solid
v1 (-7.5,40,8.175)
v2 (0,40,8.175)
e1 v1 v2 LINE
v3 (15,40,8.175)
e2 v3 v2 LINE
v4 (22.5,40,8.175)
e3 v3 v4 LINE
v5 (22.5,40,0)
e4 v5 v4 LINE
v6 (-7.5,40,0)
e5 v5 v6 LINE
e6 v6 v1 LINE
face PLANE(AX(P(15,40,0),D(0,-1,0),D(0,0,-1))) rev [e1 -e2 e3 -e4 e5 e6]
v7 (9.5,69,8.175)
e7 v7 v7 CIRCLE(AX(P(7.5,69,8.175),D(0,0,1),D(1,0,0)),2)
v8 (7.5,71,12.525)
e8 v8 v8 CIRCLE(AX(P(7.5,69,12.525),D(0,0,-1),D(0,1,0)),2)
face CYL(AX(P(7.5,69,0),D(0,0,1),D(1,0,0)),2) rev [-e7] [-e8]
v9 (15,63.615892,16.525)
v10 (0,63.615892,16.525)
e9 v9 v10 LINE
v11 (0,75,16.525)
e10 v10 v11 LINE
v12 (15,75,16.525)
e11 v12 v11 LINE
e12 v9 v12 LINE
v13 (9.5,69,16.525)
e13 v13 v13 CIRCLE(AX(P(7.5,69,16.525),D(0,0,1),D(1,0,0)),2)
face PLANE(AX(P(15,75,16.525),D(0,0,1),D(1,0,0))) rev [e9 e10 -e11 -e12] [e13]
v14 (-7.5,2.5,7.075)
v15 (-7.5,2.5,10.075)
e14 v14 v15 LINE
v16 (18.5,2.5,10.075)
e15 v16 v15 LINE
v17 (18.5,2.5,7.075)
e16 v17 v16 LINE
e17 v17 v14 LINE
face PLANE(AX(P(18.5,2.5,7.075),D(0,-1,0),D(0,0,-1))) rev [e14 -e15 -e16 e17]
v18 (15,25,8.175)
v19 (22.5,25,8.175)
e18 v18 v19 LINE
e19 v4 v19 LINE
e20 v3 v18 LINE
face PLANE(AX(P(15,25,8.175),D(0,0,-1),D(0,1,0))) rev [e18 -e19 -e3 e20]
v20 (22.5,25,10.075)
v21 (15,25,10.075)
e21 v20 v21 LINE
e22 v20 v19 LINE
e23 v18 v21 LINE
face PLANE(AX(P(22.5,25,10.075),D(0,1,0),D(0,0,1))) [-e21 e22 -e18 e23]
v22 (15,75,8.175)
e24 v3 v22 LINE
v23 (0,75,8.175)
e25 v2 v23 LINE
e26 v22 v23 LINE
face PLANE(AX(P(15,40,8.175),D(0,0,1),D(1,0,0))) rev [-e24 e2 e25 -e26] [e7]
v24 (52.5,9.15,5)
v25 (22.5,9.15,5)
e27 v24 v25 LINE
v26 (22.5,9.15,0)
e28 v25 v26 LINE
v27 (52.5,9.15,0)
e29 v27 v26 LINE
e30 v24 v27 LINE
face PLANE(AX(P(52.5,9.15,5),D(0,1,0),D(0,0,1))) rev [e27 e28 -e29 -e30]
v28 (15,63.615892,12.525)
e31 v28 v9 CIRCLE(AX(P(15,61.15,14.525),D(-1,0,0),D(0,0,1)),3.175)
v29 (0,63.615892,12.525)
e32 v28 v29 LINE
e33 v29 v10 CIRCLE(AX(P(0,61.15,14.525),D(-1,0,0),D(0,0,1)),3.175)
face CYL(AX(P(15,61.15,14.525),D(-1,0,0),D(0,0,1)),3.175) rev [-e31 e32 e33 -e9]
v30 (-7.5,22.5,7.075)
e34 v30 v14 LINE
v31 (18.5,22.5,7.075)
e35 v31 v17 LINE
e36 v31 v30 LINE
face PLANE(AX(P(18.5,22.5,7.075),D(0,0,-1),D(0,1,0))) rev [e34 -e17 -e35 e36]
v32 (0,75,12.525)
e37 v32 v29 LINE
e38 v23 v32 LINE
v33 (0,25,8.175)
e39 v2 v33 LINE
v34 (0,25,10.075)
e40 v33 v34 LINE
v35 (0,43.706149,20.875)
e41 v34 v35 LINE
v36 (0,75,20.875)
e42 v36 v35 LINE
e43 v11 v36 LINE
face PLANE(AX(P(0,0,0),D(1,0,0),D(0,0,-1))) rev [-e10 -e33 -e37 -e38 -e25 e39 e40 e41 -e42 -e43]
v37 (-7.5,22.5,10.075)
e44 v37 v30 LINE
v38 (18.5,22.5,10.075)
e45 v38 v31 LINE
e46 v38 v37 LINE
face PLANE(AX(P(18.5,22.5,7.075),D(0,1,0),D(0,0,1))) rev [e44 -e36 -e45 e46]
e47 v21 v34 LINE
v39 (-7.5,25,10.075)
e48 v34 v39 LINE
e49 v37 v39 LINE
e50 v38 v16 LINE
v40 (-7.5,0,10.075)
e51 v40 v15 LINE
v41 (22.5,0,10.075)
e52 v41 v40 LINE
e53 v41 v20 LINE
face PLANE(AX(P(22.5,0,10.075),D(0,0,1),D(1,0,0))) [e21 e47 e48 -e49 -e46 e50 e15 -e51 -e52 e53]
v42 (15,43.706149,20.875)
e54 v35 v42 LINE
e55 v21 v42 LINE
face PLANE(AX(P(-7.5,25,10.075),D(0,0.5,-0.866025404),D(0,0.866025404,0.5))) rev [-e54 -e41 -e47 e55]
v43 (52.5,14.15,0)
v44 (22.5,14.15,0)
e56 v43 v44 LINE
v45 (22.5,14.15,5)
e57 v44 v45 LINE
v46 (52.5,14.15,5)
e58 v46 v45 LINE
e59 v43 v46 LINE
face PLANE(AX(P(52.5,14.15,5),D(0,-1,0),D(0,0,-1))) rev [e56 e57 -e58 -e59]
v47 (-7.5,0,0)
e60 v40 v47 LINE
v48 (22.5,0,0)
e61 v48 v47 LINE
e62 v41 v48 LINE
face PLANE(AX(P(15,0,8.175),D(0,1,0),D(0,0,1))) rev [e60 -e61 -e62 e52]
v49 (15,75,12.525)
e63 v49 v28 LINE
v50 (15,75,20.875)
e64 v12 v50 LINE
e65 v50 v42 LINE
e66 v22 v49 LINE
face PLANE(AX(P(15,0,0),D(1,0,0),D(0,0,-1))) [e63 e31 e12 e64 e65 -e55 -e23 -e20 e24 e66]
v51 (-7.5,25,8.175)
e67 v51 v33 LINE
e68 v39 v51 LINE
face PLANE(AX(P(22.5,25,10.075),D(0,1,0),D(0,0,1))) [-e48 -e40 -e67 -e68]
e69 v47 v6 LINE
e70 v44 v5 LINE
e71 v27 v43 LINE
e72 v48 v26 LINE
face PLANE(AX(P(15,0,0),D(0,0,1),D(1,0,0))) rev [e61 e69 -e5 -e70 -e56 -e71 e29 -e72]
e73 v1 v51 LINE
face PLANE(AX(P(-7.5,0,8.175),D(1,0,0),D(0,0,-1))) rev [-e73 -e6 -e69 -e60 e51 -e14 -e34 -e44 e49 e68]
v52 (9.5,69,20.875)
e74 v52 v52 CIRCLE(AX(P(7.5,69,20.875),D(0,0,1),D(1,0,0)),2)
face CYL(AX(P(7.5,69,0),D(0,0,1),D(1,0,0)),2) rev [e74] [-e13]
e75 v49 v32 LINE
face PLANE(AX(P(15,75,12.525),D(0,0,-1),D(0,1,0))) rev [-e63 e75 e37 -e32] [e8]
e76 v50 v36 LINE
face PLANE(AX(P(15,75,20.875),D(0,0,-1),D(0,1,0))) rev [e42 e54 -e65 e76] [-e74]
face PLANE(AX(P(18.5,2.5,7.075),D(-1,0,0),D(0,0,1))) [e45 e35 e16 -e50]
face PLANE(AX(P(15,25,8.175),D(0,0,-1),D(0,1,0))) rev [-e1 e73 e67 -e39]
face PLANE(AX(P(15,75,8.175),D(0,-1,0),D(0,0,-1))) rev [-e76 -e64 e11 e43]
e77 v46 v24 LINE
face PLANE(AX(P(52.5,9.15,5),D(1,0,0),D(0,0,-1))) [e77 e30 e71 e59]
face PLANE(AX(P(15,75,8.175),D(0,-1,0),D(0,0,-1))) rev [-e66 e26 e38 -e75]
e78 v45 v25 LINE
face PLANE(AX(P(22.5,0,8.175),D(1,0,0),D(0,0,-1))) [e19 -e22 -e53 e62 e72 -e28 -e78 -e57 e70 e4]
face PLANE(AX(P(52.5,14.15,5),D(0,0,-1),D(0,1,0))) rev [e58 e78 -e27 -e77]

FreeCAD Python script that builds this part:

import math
import FreeCAD as App
import Part
import Sketcher

V = App.Vector
Q = App.Units.Quantity

doc = App.newDocument("Part")
body = doc.addObject("PartDesign::Body", "Body")

# Sketch on YZ plane
sketch1 = doc.addObject("Sketcher::SketchObject", "Sketch")
body.addObject(sketch1)
sketch1.AttachmentSupport = (doc.YZ_Plane, [""])
sketch1.MapMode = "FlatFace"
sketch1.addGeometry([
    Part.LineSegment(V(0, 0, 0), V(40, 0, 0)),  # 0
    Part.LineSegment(V(40, 0, 0), V(40, 8, 0)),  # 1
    Part.LineSegment(V(40, 8, 0), V(75, 8, 0)),  # 2
    Part.LineSegment(V(75, 8, 0), V(75, 21, 0)),  # 3
    Part.LineSegment(V(75, 21, 0), V(25, 21, 0)),  # 4
    Part.LineSegment(V(25, 21, 0), V(25, 8, 0)),  # 5
    Part.LineSegment(V(25, 8, 0), V(0, 8, 0)),  # 6
    Part.LineSegment(V(0, 8, 0), V(0, 0, 0)),  # 7
], False)
sketch1.addConstraint([
    Sketcher.Constraint("Coincident", 0, 2, 1, 1),
    Sketcher.Constraint("Coincident", 1, 2, 2, 1),
    Sketcher.Constraint("Coincident", 2, 2, 3, 1),
    Sketcher.Constraint("Coincident", 3, 2, 4, 1),
    Sketcher.Constraint("Coincident", 4, 2, 5, 1),
    Sketcher.Constraint("Coincident", 5, 2, 6, 1),
    Sketcher.Constraint("Coincident", 6, 2, 7, 1),
    Sketcher.Constraint("Coincident", 7, 2, 0, 1),
    Sketcher.Constraint("Horizontal", 0),
    Sketcher.Constraint("Vertical", 1),
    Sketcher.Constraint("Horizontal", 2),
    Sketcher.Constraint("Vertical", 3),
    Sketcher.Constraint("Horizontal", 4),
    Sketcher.Constraint("Vertical", 5),
    Sketcher.Constraint("Horizontal", 6),
    Sketcher.Constraint("Vertical", 7),
    Sketcher.Constraint("Coincident", 7, 2, -1, 1),
    Sketcher.Constraint("Horizontal", 2, 2, 5, 2),
    Sketcher.Constraint("DistanceX", 0, 1, 0, 2, 40.0),
    Sketcher.Constraint("DistanceX", 2, 1, 2, 2, 35.0),
    Sketcher.Constraint("DistanceX", 4, 2, 4, 1, 50.0),
    Sketcher.Constraint("DistanceY", 3, 1, 3, 2, 12.7),
    Sketcher.Constraint("DistanceY", 1, 1, 1, 2, 8.175),
])
pad1 = doc.addObject("PartDesign::Pad", "Pad")
body.addObject(pad1)
pad1.Profile = sketch1
pad1.Length = 15

# Sketch on YZ plane
sketch2 = doc.addObject("Sketcher::SketchObject", "Sketch001")
body.addObject(sketch2)
sketch2.AttachmentSupport = (doc.YZ_Plane, [""])
sketch2.MapMode = "FlatFace"
sketch2.addGeometry([
    Part.LineSegment(V(75, 12.5, 0), V(63.6, 12.5, 0)),
    Part.ArcOfCircle(Part.Circle(V(61.1, 14.5, 0), V(0, 0, 1), 3.2), math.radians(39), math.radians(321)),
    Part.LineSegment(V(63.6, 16.5, 0), V(75, 16.5, 0)),
    Part.LineSegment(V(75, 16.5, 0), V(75, 12.5, 0)),
], False)
sketch2.addConstraint([
    Sketcher.Constraint("Coincident", 0, 2, 1, 2),
    Sketcher.Constraint("Coincident", 1, 1, 2, 1),
    Sketcher.Constraint("Coincident", 2, 2, 3, 1),
    Sketcher.Constraint("Coincident", 3, 2, 0, 1),
    Sketcher.Constraint("Horizontal", 0),
    Sketcher.Constraint("Horizontal", 2),
    Sketcher.Constraint("Vertical", 3),
    Sketcher.Constraint("Vertical", 0, 2, 1, 1),
    Sketcher.Constraint("DistanceY", 3, 2, 3, 1, 4.0),
    Sketcher.Constraint("DistanceX", -1, 1, 2, 2, 75.0),
    Sketcher.Constraint("Radius", 1, 3.175),
    Sketcher.Constraint("DistanceX", -1, 1, 1, 3, 61.15),
    Sketcher.Constraint("DistanceY", -1, 1, 1, 3, 14.525),
])
pocket1 = doc.addObject("PartDesign::Pocket", "Pocket")
body.addObject(pocket1)
pocket1.Profile = sketch2
pocket1.Type = "ThroughAll"
pocket1.Reversed = True

# Sketch on XY plane
sketch3 = doc.addObject("Sketcher::SketchObject", "Sketch002")
body.addObject(sketch3)
sketch3.AttachmentSupport = (doc.XY_Plane, [""])
sketch3.MapMode = "FlatFace"
sketch3.AttachmentOffset = App.Placement(V(0, 0, 20.875), App.Rotation())
sketch3.addGeometry(Part.Circle(V(7.5, 69, 0), V(0, 0, 1), 2), False)
sketch3.addConstraint([
    Sketcher.Constraint("Diameter", 0, 4.0),
    Sketcher.Constraint("DistanceY", -1, 1, 0, 3, 69.0),
    Sketcher.Constraint("DistanceX", -1, 1, 0, 3, 7.5),
])
pocket2 = doc.addObject("PartDesign::Pocket", "Pocket001")
body.addObject(pocket2)
pocket2.Profile = sketch3
pocket2.Type = "ThroughAll"

# Sketch on YZ plane
sketch4 = doc.addObject("Sketcher::SketchObject", "Sketch003")
body.addObject(sketch4)
sketch4.AttachmentSupport = (doc.YZ_Plane, [""])
sketch4.MapMode = "FlatFace"
sketch4.addGeometry([
    Part.LineSegment(V(40, 8, 0), V(0, 8, 0)),
    Part.LineSegment(V(0, 8, 0), V(0, 0, 0)),
    Part.LineSegment(V(0, 0, 0), V(40, 0, 0)),
    Part.LineSegment(V(40, 0, 0), V(40, 8, 0)),
], False)
sketch4.addConstraint([
    Sketcher.Constraint("Coincident", 0, 2, 1, 1),
    Sketcher.Constraint("Coincident", 1, 2, 2, 1),
    Sketcher.Constraint("Coincident", 2, 2, 3, 1),
    Sketcher.Constraint("Coincident", 3, 2, 0, 1),
    Sketcher.Constraint("Horizontal", 0),
    Sketcher.Constraint("Vertical", 1),
    Sketcher.Constraint("Horizontal", 2),
    Sketcher.Constraint("Vertical", 3),
    Sketcher.Constraint("Coincident", 1, 2, -1, 1),
    Sketcher.Constraint("DistanceX", 0, 2, 0, 1, 40.0),
    Sketcher.Constraint("DistanceY", 1, 2, 1, 1, 8.175),
])
pad2 = doc.addObject("PartDesign::Pad", "Pad001")
body.addObject(pad2)
pad2.Profile = sketch4
pad2.Type = "TwoLengths"
pad2.Length = 22.5
pad2.Length2 = 7.5

# Sketch on YZ plane
sketch5 = doc.addObject("Sketcher::SketchObject", "Sketch004")
body.addObject(sketch5)
sketch5.AttachmentSupport = (doc.YZ_Plane, [""])
sketch5.MapMode = "FlatFace"
sketch5.AttachmentOffset = App.Placement(V(0, 0, -7.5), App.Rotation())
sketch5.addGeometry([
    Part.LineSegment(V(22.5, 7.1, 0), V(2.5, 7.1, 0)),
    Part.LineSegment(V(2.5, 7.1, 0), V(2.5, 8.2, 0)),
    Part.LineSegment(V(2.5, 8.2, 0), V(22.5, 8.2, 0)),
    Part.LineSegment(V(22.5, 8.2, 0), V(22.5, 7.1, 0)),
], False)
sketch5.addConstraint([
    Sketcher.Constraint("Coincident", 0, 2, 1, 1),
    Sketcher.Constraint("Coincident", 1, 2, 2, 1),
    Sketcher.Constraint("Coincident", 2, 2, 3, 1),
    Sketcher.Constraint("Coincident", 3, 2, 0, 1),
    Sketcher.Constraint("Horizontal", 0),
    Sketcher.Constraint("Vertical", 1),
    Sketcher.Constraint("Horizontal", 2),
    Sketcher.Constraint("Vertical", 3),
    Sketcher.Constraint("DistanceX", 0, 2, 0, 1, 20.0),
    Sketcher.Constraint("DistanceY", 1, 1, 1, 2, 1.1),
    Sketcher.Constraint("DistanceX", -1, 1, 0, 2, 2.5),
    Sketcher.Constraint("DistanceY", -1, 1, 0, 2, 7.075),
])
pocket3 = doc.addObject("PartDesign::Pocket", "Pocket002")
body.addObject(pocket3)
pocket3.Profile = sketch5
pocket3.Length = 26
pocket3.Reversed = True

# Sketch on YZ plane
sketch6 = doc.addObject("Sketcher::SketchObject", "Sketch005")
body.addObject(sketch6)
sketch6.AttachmentSupport = (doc.YZ_Plane, [""])
sketch6.MapMode = "FlatFace"
sketch6.AttachmentOffset = App.Placement(V(0, 0, -7.5), App.Rotation())
sketch6.addGeometry([
    Part.LineSegment(V(22.5, 7.1, 0), V(22.5, 10.1, 0)),  # 0
    Part.LineSegment(V(22.5, 10.1, 0), V(25, 10.1, 0)),  # 1
    Part.LineSegment(V(25, 10.1, 0), V(25, 5.1, 0)),  # 2
    Part.LineSegment(V(25, 5.1, 0), V(0, 5.1, 0)),  # 3
    Part.LineSegment(V(0, 5.1, 0), V(0, 10.1, 0)),  # 4
    Part.LineSegment(V(0, 10.1, 0), V(2.5, 10.1, 0)),  # 5
    Part.LineSegment(V(2.5, 10.1, 0), V(2.5, 7.1, 0)),  # 6
    Part.LineSegment(V(2.5, 7.1, 0), V(22.5, 7.1, 0)),  # 7
], False)
sketch6.addConstraint([
    Sketcher.Constraint("Coincident", 0, 2, 1, 1),
    Sketcher.Constraint("Coincident", 1, 2, 2, 1),
    Sketcher.Constraint("Coincident", 2, 2, 3, 1),
    Sketcher.Constraint("Coincident", 3, 2, 4, 1),
    Sketcher.Constraint("Coincident", 4, 2, 5, 1),
    Sketcher.Constraint("Coincident", 5, 2, 6, 1),
    Sketcher.Constraint("Coincident", 6, 2, 7, 1),
    Sketcher.Constraint("Coincident", 7, 2, 0, 1),
    Sketcher.Constraint("Vertical", 0),
    Sketcher.Constraint("Horizontal", 1),
    Sketcher.Constraint("Vertical", 2),
    Sketcher.Constraint("Horizontal", 3),
    Sketcher.Constraint("Vertical", 4),
    Sketcher.Constraint("Horizontal", 5),
    Sketcher.Constraint("Vertical", 6),
    Sketcher.Constraint("Horizontal", 7),
    Sketcher.Constraint("PointOnObject", 3, 2, -2),
    Sketcher.Constraint("Horizontal", 1, 2, 4, 2),
    Sketcher.Constraint("Equal", 1, 5),
    Sketcher.Constraint("DistanceX", 3, 2, 3, 1, 25.0),
    Sketcher.Constraint("DistanceX", 7, 1, 7, 2, 20.0),
    Sketcher.Constraint("DistanceY", 0, 1, 0, 2, 3.0),
    Sketcher.Constraint("DistanceY", 2, 2, 2, 1, 5.0),
    Sketcher.Constraint("DistanceY", -1, 1, 0, 2, 10.075),
])
pad3 = doc.addObject("PartDesign::Pad", "Pad002")
body.addObject(pad3)
pad3.Profile = sketch6
pad3.Type = "UpToLast"

# Sketch on YZ plane
sketch7 = doc.addObject("Sketcher::SketchObject", "Sketch006")
body.addObject(sketch7)
sketch7.AttachmentSupport = (doc.YZ_Plane, [""])
sketch7.MapMode = "FlatFace"
sketch7.AttachmentOffset = App.Placement(V(0, 0, 22.5), App.Rotation())
sketch7.addGeometry([
    Part.LineSegment(V(25, 10.1, 0), V(0, 10.1, 0)),
    Part.LineSegment(V(0, 10.1, 0), V(0, 8.2, 0)),
    Part.LineSegment(V(0, 8.2, 0), V(25, 8.2, 0)),
    Part.LineSegment(V(25, 8.2, 0), V(25, 10.1, 0)),
], False)
sketch7.addConstraint([
    Sketcher.Constraint("Coincident", 0, 2, 1, 1),
    Sketcher.Constraint("Coincident", 1, 2, 2, 1),
    Sketcher.Constraint("Coincident", 2, 2, 3, 1),
    Sketcher.Constraint("Coincident", 3, 2, 0, 1),
    Sketcher.Constraint("Horizontal", 0),
    Sketcher.Constraint("Vertical", 1),
    Sketcher.Constraint("Horizontal", 2),
    Sketcher.Constraint("Vertical", 3),
    Sketcher.Constraint("PointOnObject", 0, 2, -2),
    Sketcher.Constraint("DistanceX", 0, 2, 0, 1, 25.0),
    Sketcher.Constraint("DistanceY", 1, 2, 1, 1, 1.9),
    Sketcher.Constraint("DistanceY", -1, 1, 0, 2, 10.075),
])
pad4 = doc.addObject("PartDesign::Pad", "Pad003")
body.addObject(pad4)
pad4.Profile = sketch7
pad4.Length = 4
pad4.Reversed = True

# Sketch on YZ plane
sketch8 = doc.addObject("Sketcher::SketchObject", "Sketch007")
body.addObject(sketch8)
sketch8.AttachmentSupport = (doc.YZ_Plane, [""])
sketch8.MapMode = "FlatFace"
sketch8.AttachmentOffset = App.Placement(V(0, 0, 22.5), App.Rotation())
sketch8.addGeometry([
    Part.LineSegment(V(14, 5, 0), V(9, 5, 0)),
    Part.LineSegment(V(9, 5, 0), V(9, 0, 0)),
    Part.LineSegment(V(9, 0, 0), V(14, 0, 0)),
    Part.LineSegment(V(14, 0, 0), V(14, 5, 0)),
], False)
sketch8.addConstraint([
    Sketcher.Constraint("Coincident", 0, 2, 1, 1),
    Sketcher.Constraint("Coincident", 1, 2, 2, 1),
    Sketcher.Constraint("Coincident", 2, 2, 3, 1),
    Sketcher.Constraint("Coincident", 3, 2, 0, 1),
    Sketcher.Constraint("Horizontal", 0),
    Sketcher.Constraint("Vertical", 1),
    Sketcher.Constraint("Horizontal", 2),
    Sketcher.Constraint("Vertical", 3),
    Sketcher.Constraint("PointOnObject", 1, 2, -1),
    Sketcher.Constraint("Equal", 2, 1),
    Sketcher.Constraint("DistanceX", 0, 2, 0, 1, 5.0),
    Sketcher.Constraint("DistanceX", -1, 1, 0, 2, 9.15),
])
pad5 = doc.addObject("PartDesign::Pad", "Pad004")
body.addObject(pad5)
pad5.Profile = sketch8
pad5.Length = 30

# Sketch on YZ plane
sketch9 = doc.addObject("Sketcher::SketchObject", "Sketch008")
body.addObject(sketch9)
sketch9.AttachmentSupport = (doc.YZ_Plane, [""])
sketch9.MapMode = "FlatFace"
sketch9.AttachmentOffset = App.Placement(V(0, 0, 15), App.Rotation())
sketch9.addGeometry([
    Part.LineSegment(V(25, 10, 0), V(44, 21, 0)),
    Part.LineSegment(V(44, 21, 0), V(25, 21, 0)),
    Part.LineSegment(V(25, 21, 0), V(25, 10, 0)),
], False)
sketch9.addConstraint([
    Sketcher.Constraint("Coincident", 0, 2, 1, 1),
    Sketcher.Constraint("Coincident", 1, 2, 2, 1),
    Sketcher.Constraint("Coincident", 2, 2, 0, 1),
    Sketcher.Constraint("Horizontal", 1),
    Sketcher.Constraint("Vertical", 2),
    Sketcher.Constraint("Angle", 0, Q("30 deg")),
    Sketcher.Constraint("DistanceY", 2, 2, 2, 1, 10.8),
    Sketcher.Constraint("DistanceX", -1, 1, 1, 2, 25.0),
    Sketcher.Constraint("DistanceY", -1, 1, 0, 2, 20.875),
])
pocket4 = doc.addObject("PartDesign::Pocket", "Pocket003")
body.addObject(pocket4)
pocket4.Profile = sketch9
pocket4.Type = "ThroughAll"

doc.recompute()
